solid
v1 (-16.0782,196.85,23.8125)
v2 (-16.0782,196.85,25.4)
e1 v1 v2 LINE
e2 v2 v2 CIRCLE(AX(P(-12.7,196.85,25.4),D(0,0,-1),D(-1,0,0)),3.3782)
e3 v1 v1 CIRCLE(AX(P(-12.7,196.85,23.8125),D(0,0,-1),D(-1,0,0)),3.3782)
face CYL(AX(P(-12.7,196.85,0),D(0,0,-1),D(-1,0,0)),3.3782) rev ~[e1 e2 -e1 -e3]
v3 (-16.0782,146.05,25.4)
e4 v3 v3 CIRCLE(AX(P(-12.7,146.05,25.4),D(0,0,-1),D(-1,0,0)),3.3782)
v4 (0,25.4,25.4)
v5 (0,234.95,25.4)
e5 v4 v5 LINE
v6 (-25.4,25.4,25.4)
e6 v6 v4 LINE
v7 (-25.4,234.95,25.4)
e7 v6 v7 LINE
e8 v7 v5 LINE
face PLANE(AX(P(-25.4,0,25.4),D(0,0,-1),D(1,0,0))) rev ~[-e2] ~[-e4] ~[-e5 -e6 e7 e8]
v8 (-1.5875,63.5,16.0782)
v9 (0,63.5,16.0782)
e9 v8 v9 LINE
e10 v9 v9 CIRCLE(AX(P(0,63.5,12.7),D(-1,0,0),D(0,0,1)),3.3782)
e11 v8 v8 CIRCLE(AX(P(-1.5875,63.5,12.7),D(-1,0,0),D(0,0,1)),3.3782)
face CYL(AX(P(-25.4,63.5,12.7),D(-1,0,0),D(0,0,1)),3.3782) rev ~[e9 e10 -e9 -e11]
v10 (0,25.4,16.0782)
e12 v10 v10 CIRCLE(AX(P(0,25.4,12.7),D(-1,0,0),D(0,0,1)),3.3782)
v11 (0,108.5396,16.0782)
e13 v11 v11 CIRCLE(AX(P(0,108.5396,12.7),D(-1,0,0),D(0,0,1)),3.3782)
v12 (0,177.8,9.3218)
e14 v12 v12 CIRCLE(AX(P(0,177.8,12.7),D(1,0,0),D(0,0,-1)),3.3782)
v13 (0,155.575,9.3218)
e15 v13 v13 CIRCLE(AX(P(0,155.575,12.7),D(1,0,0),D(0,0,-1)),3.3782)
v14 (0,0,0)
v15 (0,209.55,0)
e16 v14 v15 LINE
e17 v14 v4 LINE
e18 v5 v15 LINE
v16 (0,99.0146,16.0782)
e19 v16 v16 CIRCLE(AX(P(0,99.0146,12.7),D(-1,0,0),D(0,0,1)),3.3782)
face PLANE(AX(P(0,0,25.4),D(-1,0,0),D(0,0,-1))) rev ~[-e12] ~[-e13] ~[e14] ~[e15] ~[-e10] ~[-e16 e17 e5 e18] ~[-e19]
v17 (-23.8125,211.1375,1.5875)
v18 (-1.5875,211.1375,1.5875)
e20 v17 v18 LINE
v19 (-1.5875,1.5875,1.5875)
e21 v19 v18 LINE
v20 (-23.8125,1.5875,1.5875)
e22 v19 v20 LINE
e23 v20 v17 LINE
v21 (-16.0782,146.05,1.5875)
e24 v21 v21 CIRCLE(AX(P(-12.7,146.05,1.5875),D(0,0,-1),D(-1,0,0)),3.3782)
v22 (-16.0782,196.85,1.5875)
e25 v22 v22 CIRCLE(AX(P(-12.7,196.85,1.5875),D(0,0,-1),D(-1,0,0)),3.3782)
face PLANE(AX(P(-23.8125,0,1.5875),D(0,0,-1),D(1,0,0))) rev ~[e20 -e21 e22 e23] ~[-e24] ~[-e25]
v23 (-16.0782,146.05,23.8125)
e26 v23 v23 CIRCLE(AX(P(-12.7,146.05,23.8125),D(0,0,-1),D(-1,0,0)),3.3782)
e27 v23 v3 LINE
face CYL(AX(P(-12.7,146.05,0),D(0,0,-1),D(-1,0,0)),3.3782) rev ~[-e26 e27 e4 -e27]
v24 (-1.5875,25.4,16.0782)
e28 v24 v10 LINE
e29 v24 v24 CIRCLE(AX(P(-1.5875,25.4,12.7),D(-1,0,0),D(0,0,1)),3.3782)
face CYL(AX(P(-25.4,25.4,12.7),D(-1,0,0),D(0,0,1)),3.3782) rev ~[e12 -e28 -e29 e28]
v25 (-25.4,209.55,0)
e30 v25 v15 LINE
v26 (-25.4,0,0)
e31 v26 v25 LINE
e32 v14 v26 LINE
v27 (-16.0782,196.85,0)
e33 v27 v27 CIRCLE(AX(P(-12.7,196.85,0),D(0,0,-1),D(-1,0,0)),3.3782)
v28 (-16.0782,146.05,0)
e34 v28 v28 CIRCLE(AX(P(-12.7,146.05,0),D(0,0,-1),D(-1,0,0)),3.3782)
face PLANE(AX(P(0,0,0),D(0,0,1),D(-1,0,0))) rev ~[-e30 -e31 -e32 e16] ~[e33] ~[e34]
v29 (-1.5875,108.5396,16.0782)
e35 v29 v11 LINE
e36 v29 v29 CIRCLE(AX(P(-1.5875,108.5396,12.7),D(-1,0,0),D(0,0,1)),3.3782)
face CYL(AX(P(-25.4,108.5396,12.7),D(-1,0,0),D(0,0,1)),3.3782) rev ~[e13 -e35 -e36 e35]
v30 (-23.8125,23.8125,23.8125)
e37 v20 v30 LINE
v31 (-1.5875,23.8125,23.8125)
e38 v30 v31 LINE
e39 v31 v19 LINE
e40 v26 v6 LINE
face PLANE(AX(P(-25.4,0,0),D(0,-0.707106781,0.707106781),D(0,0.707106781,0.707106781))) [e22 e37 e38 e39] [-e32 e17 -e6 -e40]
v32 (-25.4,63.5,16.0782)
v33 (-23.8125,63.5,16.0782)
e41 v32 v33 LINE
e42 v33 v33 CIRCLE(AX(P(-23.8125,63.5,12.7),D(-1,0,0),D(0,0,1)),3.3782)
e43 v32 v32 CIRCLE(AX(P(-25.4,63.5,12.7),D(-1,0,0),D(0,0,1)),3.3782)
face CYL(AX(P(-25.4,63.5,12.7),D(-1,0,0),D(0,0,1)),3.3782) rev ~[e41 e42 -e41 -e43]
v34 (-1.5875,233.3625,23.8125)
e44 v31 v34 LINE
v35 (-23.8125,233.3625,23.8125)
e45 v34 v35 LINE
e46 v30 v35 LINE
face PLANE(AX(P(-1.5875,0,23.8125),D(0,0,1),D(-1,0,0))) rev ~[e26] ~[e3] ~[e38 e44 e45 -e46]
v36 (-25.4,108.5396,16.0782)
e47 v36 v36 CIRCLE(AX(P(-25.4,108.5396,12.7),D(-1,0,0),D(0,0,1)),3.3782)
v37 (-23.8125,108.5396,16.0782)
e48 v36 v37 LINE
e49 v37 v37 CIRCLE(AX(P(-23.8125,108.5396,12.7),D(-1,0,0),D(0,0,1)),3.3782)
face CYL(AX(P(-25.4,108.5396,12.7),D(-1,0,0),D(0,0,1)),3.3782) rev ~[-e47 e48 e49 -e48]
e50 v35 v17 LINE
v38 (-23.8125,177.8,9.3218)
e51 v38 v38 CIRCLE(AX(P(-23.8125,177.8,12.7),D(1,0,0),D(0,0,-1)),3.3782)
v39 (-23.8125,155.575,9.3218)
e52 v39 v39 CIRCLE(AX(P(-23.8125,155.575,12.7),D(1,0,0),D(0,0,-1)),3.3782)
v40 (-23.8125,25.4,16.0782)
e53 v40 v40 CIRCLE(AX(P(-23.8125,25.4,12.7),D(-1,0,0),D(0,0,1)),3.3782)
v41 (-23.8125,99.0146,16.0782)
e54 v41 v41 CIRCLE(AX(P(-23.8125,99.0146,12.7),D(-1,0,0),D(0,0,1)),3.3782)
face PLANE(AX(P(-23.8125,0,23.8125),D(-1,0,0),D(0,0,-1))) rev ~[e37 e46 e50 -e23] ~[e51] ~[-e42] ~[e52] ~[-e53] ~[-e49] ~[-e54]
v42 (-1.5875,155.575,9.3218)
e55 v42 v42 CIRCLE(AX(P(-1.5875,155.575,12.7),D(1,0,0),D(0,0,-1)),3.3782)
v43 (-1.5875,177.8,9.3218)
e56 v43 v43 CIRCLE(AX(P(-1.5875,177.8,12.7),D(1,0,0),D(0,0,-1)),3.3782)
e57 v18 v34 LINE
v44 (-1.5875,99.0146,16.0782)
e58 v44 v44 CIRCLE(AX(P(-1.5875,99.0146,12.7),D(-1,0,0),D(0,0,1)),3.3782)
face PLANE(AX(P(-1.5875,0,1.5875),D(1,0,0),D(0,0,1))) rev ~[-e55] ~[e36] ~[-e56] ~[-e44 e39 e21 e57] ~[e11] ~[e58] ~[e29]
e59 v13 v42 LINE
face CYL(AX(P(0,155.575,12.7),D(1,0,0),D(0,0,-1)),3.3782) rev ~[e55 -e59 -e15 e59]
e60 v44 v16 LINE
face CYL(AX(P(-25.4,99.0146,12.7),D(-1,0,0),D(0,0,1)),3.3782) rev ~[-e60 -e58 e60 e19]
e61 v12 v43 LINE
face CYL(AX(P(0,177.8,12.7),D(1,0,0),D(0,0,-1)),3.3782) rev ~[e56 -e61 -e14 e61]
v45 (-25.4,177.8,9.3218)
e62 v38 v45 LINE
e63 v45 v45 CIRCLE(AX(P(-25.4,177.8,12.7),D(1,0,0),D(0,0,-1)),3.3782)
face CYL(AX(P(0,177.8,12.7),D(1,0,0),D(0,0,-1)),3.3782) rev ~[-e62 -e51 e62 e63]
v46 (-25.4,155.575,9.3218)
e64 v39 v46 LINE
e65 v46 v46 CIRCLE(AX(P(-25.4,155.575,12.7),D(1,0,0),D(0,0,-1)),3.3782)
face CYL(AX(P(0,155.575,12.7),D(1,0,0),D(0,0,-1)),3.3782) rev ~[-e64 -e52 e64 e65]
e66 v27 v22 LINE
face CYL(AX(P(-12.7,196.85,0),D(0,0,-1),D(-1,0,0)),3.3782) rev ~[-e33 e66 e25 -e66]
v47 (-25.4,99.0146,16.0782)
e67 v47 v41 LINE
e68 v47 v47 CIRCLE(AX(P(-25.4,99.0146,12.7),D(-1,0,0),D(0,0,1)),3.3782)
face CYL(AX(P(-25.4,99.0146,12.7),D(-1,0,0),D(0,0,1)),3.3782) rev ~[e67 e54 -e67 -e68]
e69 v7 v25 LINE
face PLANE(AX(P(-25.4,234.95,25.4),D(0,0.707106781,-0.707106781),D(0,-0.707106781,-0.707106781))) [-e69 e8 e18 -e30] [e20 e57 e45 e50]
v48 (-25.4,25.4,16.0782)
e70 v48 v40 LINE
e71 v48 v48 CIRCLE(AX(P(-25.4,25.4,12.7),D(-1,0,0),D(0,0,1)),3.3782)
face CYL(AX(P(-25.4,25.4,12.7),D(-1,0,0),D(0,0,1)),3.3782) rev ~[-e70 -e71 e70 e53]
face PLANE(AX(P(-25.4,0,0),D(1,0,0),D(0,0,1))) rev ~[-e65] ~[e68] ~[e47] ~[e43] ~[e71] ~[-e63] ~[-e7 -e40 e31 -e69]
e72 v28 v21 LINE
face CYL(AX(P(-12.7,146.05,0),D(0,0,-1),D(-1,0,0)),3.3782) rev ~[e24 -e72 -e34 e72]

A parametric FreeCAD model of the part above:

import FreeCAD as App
import Part
import Sketcher
from FreeCAD import Vector
Q = App.Units.Quantity

doc = App.newDocument("Part")
params = doc.addObject("Spreadsheet::Sheet", "Params")
for row, (alias, value) in enumerate([
    ("sketch1_width", "1 in"),
    ("pad1_length", "10 in"),
    ("sketch2_height", "1 in"),
    ("sketch2_width", "0.75 in"),
    ("pocket1_length", "1 in"),
    ("sketch3_width", "1 in"),
    ("pocket2_length", "1 in"),
    ("sketch4_diameter", "0.266 in"),
    ("pocket3_length", "1 in"),
    ("sketch5_diameter", "0.266 in"),
    ("pocket4_length", "1 in"),
    ("sketch6_diameter", "0.266 in"),
    ("pocket5_length", "1 in"),
    ("sketch7_diameter", "0.266 in"),
    ("pocket6_length", "1 in"),
], start=1):
    params.set(f"A{row}", alias)
    params.set(f"B{row}", "=" + value)
    params.setAlias(f"B{row}", alias)

body = doc.addObject("PartDesign::Body", "Body")

# Sketch on XZ plane
sketch1 = doc.addObject("Sketcher::SketchObject", "Sketch")
body.addObject(sketch1)
sketch1.AttachmentSupport = (doc.XZ_Plane, [""])
sketch1.MapMode = "FlatFace"
sketch1.addGeometry([
    Part.LineSegment(Vector(0, 25.4, 0), Vector(0, 0, 0)),  # 0
    Part.LineSegment(Vector(0, 0, 0), Vector(-25.4, 0, 0)),  # 1
    Part.LineSegment(Vector(-25.4, 0, 0), Vector(-25.4, 25.4, 0)),  # 2
    Part.LineSegment(Vector(-25.4, 25.4, 0), Vector(0, 25.4, 0)),  # 3
    Part.LineSegment(Vector(-1.5875, 1.5875, 0), Vector(-1.5875, 23.8125, 0)),  # 4
    Part.LineSegment(Vector(-1.5875, 23.8125, 0), Vector(-23.8125, 23.8125, 0)),  # 5
    Part.LineSegment(Vector(-23.8125, 23.8125, 0), Vector(-23.8125, 1.5875, 0)),  # 6
    Part.LineSegment(Vector(-23.8125, 1.5875, 0), Vector(-1.5875, 1.5875, 0)),  # 7
], False)
sketch1.addConstraint([
    Sketcher.Constraint("Coincident", 0, 2, 1, 1),
    Sketcher.Constraint("Coincident", 1, 2, 2, 1),
    Sketcher.Constraint("Coincident", 2, 2, 3, 1),
    Sketcher.Constraint("Coincident", 3, 2, 0, 1),
    Sketcher.Constraint("Coincident", 4, 2, 5, 1),
    Sketcher.Constraint("Coincident", 5, 2, 6, 1),
    Sketcher.Constraint("Coincident", 6, 2, 7, 1),
    Sketcher.Constraint("Coincident", 7, 2, 4, 1),
    Sketcher.Constraint("Vertical", 0),
    Sketcher.Constraint("Horizontal", 1),
    Sketcher.Constraint("Vertical", 2),
    Sketcher.Constraint("Horizontal", 3),
    Sketcher.Constraint("Vertical", 4),
    Sketcher.Constraint("Horizontal", 5),
    Sketcher.Constraint("Vertical", 6),
    Sketcher.Constraint("Horizontal", 7),
    Sketcher.Constraint("Coincident", 0, 2, -1, 1),
    Sketcher.Constraint("Equal", 3, 0),
    Sketcher.Constraint("Equal", 7, 4),
    Sketcher.Constraint("DistanceX", 1, 2, 1, 1, Q("1 in")),
    Sketcher.Constraint("DistanceX", 4, 2, -1, 1, Q("0.0625 in")),
    Sketcher.Constraint("DistanceY", -1, 1, 6, 2, Q("0.0625 in")),
    Sketcher.Constraint("DistanceY", 4, 2, 3, 2, Q("0.0625 in")),
])
sketch1.setExpression("Constraints[19]", "Params.sketch1_width")
pad1 = doc.addObject("PartDesign::Pad", "Pad")
body.addObject(pad1)
pad1.Profile = sketch1
pad1.setExpression("Length", "Params.pad1_length")
pad1.Reversed = True

# Sketch on YZ plane
sketch2 = doc.addObject("Sketcher::SketchObject", "Sketch001")
body.addObject(sketch2)
sketch2.AttachmentSupport = (doc.YZ_Plane, [""])
sketch2.MapMode = "FlatFace"
sketch2.AttachmentOffset = App.Placement(Vector(0, 0, -1 * 25.4), App.Rotation())
sketch2.addGeometry([
    Part.LineSegment(Vector(254, 25.4, 0), Vector(254, 0, 0)),
    Part.LineSegment(Vector(254, 0, 0), Vector(209.55, 0, 0)),
    Part.LineSegment(Vector(209.55, 0, 0), Vector(234.95, 25.4, 0)),
    Part.LineSegment(Vector(234.95, 25.4, 0), Vector(254, 25.4, 0)),
], False)
sketch2.addConstraint([
    Sketcher.Constraint("Coincident", 0, 2, 1, 1),
    Sketcher.Constraint("Coincident", 1, 2, 2, 1),
    Sketcher.Constraint("Coincident", 2, 2, 3, 1),
    Sketcher.Constraint("Coincident", 3, 2, 0, 1),
    Sketcher.Constraint("Vertical", 0),
    Sketcher.Constraint("Horizontal", 1),
    Sketcher.Constraint("Horizontal", 3),
    Sketcher.Constraint("PointOnObject", 0, 2, -1),
    Sketcher.Constraint("DistanceY", 0, 2, 0, 1, Q("1 in")),
    Sketcher.Constraint("DistanceX", 1, 2, 2, 2, Q("1 in")),
    Sketcher.Constraint("DistanceX", 3, 1, 3, 2, Q("0.75 in")),
    Sketcher.Constraint("DistanceX", -1, 1, 0, 2, Q("10 in")),
])
sketch2.setExpression("Constraints[8]", "Params.sketch2_height")
sketch2.setExpression("Constraints[10]", "Params.sketch2_width")
pocket1 = doc.addObject("PartDesign::Pocket", "Pocket")
body.addObject(pocket1)
pocket1.Profile = sketch2
pocket1.setExpression("Length", "Params.pocket1_length")
pocket1.Reversed = True

# Sketch on YZ plane
sketch3 = doc.addObject("Sketcher::SketchObject", "Sketch002")
body.addObject(sketch3)
sketch3.AttachmentSupport = (doc.YZ_Plane, [""])
sketch3.MapMode = "FlatFace"
sketch3.AttachmentOffset = App.Placement(Vector(0, 0, -1 * 25.4), App.Rotation())
sketch3.addGeometry([
    Part.LineSegment(Vector(25.4, 25.4, 0), Vector(0, 0, 0)),
    Part.LineSegment(Vector(0, 0, 0), Vector(0, 25.4, 0)),
    Part.LineSegment(Vector(0, 25.4, 0), Vector(25.4, 25.4, 0)),
], False)
sketch3.addConstraint([
    Sketcher.Constraint("Coincident", 0, 2, 1, 1),
    Sketcher.Constraint("Coincident", 1, 2, 2, 1),
    Sketcher.Constraint("Coincident", 2, 2, 0, 1),
    Sketcher.Constraint("Vertical", 1),
    Sketcher.Constraint("Horizontal", 2),
    Sketcher.Constraint("Coincident", 0, 2, -1, 1),
    Sketcher.Constraint("Equal", 2, 1),
    Sketcher.Constraint("DistanceX", 2, 1, 2, 2, Q("1 in")),
])
sketch3.setExpression("Constraints[7]", "Params.sketch3_width")
pocket2 = doc.addObject("PartDesign::Pocket", "Pocket001")
body.addObject(pocket2)
pocket2.Profile = sketch3
pocket2.setExpression("Length", "Params.pocket2_length")
pocket2.Reversed = True

# Sketch on YZ plane
sketch4 = doc.addObject("Sketcher::SketchObject", "Sketch003")
body.addObject(sketch4)
sketch4.AttachmentSupport = (doc.YZ_Plane, [""])
sketch4.MapMode = "FlatFace"
sketch4.AttachmentOffset = App.Placement(Vector(0, 0, -1 * 25.4), App.Rotation())
sketch4.addGeometry([
    Part.Circle(Vector(63.5, 12.7, 0), Vector(0, 0, 1), 3.3782),
    Part.Circle(Vector(25.4, 12.7, 0), Vector(0, 0, 1), 3.3782),
], False)
sketch4.addConstraint([
    Sketcher.Constraint("Equal", 0, 1),
    Sketcher.Constraint("Horizontal", 0, 3, 1, 3),
    Sketcher.Constraint("Diameter", 0, Q("0.266 in")),
    Sketcher.Constraint("DistanceX", -1, 1, 1, 3, Q("1 in")),
    Sketcher.Constraint("DistanceX", -1, 1, 0, 3, Q("2.5 in")),
    Sketcher.Constraint("DistanceY", -1, 1, 0, 3, Q("0.5 in")),
])
sketch4.setExpression("Constraints[2]", "Params.sketch4_diameter")
pocket3 = doc.addObject("PartDesign::Pocket", "Pocket002")
body.addObject(pocket3)
pocket3.Profile = sketch4
pocket3.setExpression("Length", "Params.pocket3_length")
pocket3.Reversed = True

# Sketch on XY plane
sketch5 = doc.addObject("Sketcher::SketchObject", "Sketch004")
body.addObject(sketch5)
sketch5.AttachmentSupport = (doc.XY_Plane, [""])
sketch5.MapMode = "FlatFace"
sketch5.addGeometry([
    Part.Circle(Vector(-12.7, 196.85, 0), Vector(0, 0, 1), 3.3782),
    Part.Circle(Vector(-12.7, 146.05, 0), Vector(0, 0, 1), 3.3782),
], False)
sketch5.addConstraint([
    Sketcher.Constraint("Equal", 0, 1),
    Sketcher.Constraint("Vertical", 0, 3, 1, 3),
    Sketcher.Constraint("Diameter", 0, Q("0.266 in")),
    Sketcher.Constraint("DistanceY", 1, 3, 0, 3, Q("2 in")),
    Sketcher.Constraint("DistanceX", 0, 3, -1, 1, Q("0.5 in")),
    Sketcher.Constraint("DistanceY", -1, 1, 0, 3, Q("7.75 in")),
])
sketch5.setExpression("Constraints[2]", "Params.sketch5_diameter")
pocket4 = doc.addObject("PartDesign::Pocket", "Pocket003")
body.addObject(pocket4)
pocket4.Profile = sketch5
pocket4.setExpression("Length", "Params.pocket4_length")
pocket4.Reversed = True

# Sketch on YZ plane
sketch6 = doc.addObject("Sketcher::SketchObject", "Sketch005")
body.addObject(sketch6)
sketch6.AttachmentSupport = (doc.YZ_Plane, [""])
sketch6.MapMode = "FlatFace"
sketch6.addGeometry([
    Part.Circle(Vector(177.8, 12.7, 0), Vector(0, 0, 1), 3.3782),
    Part.Circle(Vector(155.575, 12.7, 0), Vector(0, 0, 1), 3.3782),
], False)
sketch6.addConstraint([
    Sketcher.Constraint("Equal", 0, 1),
    Sketcher.Constraint("Horizontal", 0, 3, 1, 3),
    Sketcher.Constraint("Diameter", 0, Q("0.266 in")),
    Sketcher.Constraint("DistanceX", -1, 1, 0, 3, Q("7 in")),
    Sketcher.Constraint("DistanceY", -1, 1, 0, 3, Q("0.5 in")),
    Sketcher.Constraint("DistanceX", -1, 1, 1, 3, Q("6.125 in")),
])
sketch6.setExpression("Constraints[2]", "Params.sketch6_diameter")
pocket5 = doc.addObject("PartDesign::Pocket", "Pocket004")
body.addObject(pocket5)
pocket5.Profile = sketch6
pocket5.setExpression("Length", "Params.pocket5_length")

# Sketch on YZ plane
sketch7 = doc.addObject("Sketcher::SketchObject", "Sketch006")
body.addObject(sketch7)
sketch7.AttachmentSupport = (doc.YZ_Plane, [""])
sketch7.MapMode = "FlatFace"
sketch7.AttachmentOffset = App.Placement(Vector(0, 0, -1 * 25.4), App.Rotation())
sketch7.addGeometry([
    Part.Circle(Vector(108.5396, 12.7, 0), Vector(0, 0, 1), 3.3782),
    Part.Circle(Vector(99.0146, 12.7, 0), Vector(0, 0, 1), 3.3782),
], False)
sketch7.addConstraint([
    Sketcher.Constraint("Equal", 0, 1),
    Sketcher.Constraint("Horizontal", 0, 3, 1, 3),
    Sketcher.Constraint("Diameter", 0, Q("0.266 in")),
    Sketcher.Constraint("DistanceY", -1, 1, 0, 3, Q("0.5 in")),
    Sketcher.Constraint("DistanceX", 1, 3, 0, 3, Q("0.375 in")),
    Sketcher.Constraint("DistanceX", -1, 1, 0, 3, 108.5396),
])
sketch7.setExpression("Constraints[2]", "Params.sketch7_diameter")
pocket6 = doc.addObject("PartDesign::Pocket", "Pocket005")
body.addObject(pocket6)
pocket6.Profile = sketch7
pocket6.setExpression("Length", "Params.pocket6_length")
pocket6.Reversed = True

doc.recompute()
